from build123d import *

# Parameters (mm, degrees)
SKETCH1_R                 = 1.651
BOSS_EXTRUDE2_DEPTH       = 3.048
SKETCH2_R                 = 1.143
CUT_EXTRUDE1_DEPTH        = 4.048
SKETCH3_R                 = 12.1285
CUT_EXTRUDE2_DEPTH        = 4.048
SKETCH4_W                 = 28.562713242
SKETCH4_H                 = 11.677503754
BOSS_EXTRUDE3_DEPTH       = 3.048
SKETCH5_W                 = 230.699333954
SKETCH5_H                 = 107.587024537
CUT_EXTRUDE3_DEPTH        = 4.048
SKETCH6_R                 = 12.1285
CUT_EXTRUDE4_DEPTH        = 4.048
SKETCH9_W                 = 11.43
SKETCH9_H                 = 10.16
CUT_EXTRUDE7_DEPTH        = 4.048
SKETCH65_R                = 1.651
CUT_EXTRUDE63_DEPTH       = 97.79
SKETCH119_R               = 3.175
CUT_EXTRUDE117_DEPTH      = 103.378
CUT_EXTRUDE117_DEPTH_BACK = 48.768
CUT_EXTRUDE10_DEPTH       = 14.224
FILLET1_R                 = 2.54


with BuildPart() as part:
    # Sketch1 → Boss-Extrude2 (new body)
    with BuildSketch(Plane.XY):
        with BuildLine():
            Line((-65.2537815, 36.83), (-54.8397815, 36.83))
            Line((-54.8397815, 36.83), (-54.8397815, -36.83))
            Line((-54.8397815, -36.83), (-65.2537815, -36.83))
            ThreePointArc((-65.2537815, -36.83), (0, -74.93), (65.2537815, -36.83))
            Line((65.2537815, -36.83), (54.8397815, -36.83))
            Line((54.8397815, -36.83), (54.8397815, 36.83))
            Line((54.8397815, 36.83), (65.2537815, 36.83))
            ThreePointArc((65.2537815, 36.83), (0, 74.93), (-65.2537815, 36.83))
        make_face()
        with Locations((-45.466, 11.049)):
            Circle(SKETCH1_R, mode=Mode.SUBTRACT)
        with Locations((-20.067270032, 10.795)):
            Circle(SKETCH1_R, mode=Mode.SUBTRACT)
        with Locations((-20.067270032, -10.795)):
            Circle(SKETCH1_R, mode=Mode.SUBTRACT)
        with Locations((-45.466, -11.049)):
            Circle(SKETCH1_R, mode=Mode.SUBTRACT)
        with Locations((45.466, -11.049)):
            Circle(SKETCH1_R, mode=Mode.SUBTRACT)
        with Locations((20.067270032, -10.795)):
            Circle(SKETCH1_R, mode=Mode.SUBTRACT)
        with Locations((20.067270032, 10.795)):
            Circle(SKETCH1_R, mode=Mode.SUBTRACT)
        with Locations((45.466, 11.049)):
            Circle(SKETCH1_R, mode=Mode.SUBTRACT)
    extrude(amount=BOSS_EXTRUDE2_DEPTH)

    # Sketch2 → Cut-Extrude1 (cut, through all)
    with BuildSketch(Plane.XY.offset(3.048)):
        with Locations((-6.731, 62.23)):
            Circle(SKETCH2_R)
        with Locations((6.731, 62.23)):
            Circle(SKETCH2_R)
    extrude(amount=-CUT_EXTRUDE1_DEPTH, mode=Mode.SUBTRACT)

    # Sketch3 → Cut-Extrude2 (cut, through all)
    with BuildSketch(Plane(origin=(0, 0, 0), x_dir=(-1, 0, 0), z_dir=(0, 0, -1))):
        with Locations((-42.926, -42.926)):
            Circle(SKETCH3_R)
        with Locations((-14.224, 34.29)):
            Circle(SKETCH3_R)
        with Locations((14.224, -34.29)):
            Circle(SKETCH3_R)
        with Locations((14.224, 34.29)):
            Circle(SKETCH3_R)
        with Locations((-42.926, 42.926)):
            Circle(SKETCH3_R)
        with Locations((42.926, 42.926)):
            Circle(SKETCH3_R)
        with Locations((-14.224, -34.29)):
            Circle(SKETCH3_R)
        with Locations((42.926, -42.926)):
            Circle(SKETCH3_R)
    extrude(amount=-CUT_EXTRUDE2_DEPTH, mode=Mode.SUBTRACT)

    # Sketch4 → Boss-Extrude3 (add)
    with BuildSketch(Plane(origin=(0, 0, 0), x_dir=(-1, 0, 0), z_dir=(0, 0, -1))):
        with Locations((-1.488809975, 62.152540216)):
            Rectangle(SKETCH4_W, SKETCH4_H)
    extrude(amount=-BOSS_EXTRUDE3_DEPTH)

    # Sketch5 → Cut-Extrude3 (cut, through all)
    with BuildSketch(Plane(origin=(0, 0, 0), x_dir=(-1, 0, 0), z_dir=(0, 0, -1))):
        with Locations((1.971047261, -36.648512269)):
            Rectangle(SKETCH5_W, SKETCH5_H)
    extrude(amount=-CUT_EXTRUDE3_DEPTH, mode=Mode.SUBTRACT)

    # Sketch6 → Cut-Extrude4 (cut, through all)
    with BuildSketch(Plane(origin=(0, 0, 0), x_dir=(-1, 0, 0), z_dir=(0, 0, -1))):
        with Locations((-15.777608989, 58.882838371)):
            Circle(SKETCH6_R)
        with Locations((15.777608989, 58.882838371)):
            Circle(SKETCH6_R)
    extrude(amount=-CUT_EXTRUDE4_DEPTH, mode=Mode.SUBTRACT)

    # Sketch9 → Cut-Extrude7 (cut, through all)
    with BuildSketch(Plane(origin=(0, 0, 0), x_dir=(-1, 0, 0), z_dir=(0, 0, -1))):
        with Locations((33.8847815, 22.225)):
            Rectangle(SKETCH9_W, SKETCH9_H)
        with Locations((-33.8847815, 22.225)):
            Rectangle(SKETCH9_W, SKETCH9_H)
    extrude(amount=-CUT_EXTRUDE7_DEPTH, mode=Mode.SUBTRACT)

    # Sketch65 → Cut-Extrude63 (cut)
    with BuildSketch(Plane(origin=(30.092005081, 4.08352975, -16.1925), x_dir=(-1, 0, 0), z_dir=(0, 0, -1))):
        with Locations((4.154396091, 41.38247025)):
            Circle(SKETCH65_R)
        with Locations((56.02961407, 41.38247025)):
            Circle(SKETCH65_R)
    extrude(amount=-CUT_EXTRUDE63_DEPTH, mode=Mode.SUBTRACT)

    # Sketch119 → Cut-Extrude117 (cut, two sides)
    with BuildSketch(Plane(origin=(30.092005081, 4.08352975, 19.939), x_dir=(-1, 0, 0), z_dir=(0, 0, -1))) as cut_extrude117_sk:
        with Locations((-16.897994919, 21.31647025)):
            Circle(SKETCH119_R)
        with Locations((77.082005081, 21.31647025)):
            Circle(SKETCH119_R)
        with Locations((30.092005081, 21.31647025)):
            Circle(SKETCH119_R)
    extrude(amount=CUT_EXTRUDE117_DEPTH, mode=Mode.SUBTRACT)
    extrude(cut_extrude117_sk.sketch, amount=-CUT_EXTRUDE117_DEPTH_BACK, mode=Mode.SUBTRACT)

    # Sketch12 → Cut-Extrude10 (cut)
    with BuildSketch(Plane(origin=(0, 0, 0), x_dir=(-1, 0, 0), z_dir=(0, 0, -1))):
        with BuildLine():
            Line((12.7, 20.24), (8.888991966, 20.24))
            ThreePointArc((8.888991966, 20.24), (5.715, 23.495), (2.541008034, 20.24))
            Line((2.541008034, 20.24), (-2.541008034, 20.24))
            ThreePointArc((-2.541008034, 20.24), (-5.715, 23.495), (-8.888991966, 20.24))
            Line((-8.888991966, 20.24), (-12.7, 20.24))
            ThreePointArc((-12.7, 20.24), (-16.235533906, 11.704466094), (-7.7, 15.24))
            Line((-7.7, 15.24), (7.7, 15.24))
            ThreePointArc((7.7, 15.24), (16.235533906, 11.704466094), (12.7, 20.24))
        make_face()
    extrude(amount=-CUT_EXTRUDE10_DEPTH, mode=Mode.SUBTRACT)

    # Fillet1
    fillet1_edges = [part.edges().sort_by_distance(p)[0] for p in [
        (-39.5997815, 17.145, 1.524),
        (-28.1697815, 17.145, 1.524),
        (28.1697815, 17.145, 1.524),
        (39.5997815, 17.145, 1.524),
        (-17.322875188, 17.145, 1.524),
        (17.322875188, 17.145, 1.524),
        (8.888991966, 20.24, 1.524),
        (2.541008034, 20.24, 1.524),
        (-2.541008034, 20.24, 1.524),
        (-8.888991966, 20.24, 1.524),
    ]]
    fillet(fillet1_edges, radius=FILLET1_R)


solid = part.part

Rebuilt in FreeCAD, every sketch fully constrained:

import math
import FreeCAD as App
import Part
import Sketcher
Q = App.Units.Quantity


def edges_at(feature, points):
    """Names of the edges that pass closest to the given points."""
    edges = feature.Shape.Edges
    near = lambda p: min(range(len(edges)), key=lambda i: edges[i].distToShape(Part.Vertex(*p))[0])
    return sorted({f"Edge{near(p) + 1}" for p in points})


def add_polygon(sketch, points):
    """Adds a closed chain of lines whose ends are joined by coincident constraints."""
    first, n = sketch.GeometryCount, len(points)
    for a, b in zip(points, points[1:] + points[:1]):
        sketch.addGeometry(Part.LineSegment(App.Vector(*a, 0), App.Vector(*b, 0)), False)
    for i in range(n):
        sketch.addConstraint(Sketcher.Constraint("Coincident", first + i, 2, first + (i + 1) % n, 1))

doc = App.newDocument("Part")
params = doc.addObject("Spreadsheet::Sheet", "Params")
for row, (alias, value) in enumerate([
    ("sketch1_diameter", "0.13 in"),
    ("sketch1_radius", "2.95 in"),
    ("sketch1_height", "2.9 in"),
    ("sketch1_width", "0.41 in"),
    ("pad1_length", "0.12 in"),
    ("sketch2_diameter", "0.09 in"),
    ("sketch3_diameter", "0.955 in"),
    ("pad2_length", "0.12 in"),
    ("sketch6_diameter", "0.955 in"),
    ("sketch7_height", "0.4 in"),
    ("sketch7_width", "0.45 in"),
    ("sketch8_diameter", "0.13 in"),
    ("pocket6_length", "3.85 in"),
    ("sketch9_diameter", "0.25 in"),
    ("sketch10_radius", "0.125 in"),
    ("pocket8_length", "0.56 in"),
    ("fillet_radius", "0.1 in"),
], start=1):
    params.set(f"A{row}", alias)
    params.set(f"B{row}", "=" + value)
    params.setAlias(f"B{row}", alias)

body = doc.addObject("PartDesign::Body", "Body")

sketch1 = body.newObject("Sketcher::SketchObject", "Sketch")
sketch1.AttachmentSupport = (doc.getObject("XY_Plane"), [""])
sketch1.MapMode = "FlatFace"
sketch1.addGeometry([
    Part.LineSegment(App.Vector(-65.253782, 36.83, 0), App.Vector(-54.839782, 36.83, 0)),
    Part.LineSegment(App.Vector(-54.839782, 36.83, 0), App.Vector(-54.839782, -36.83, 0)),
    Part.LineSegment(App.Vector(-54.839782, -36.83, 0), App.Vector(-65.253782, -36.83, 0)),
    Part.ArcOfCircle(Part.Circle(App.Vector(0, 0, 0), App.Vector(0, 0, 1), 74.93), math.radians(-150.559107), math.radians(-29.440893)),
    Part.LineSegment(App.Vector(65.253782, -36.83, 0), App.Vector(54.839782, -36.83, 0)),
    Part.LineSegment(App.Vector(54.839782, -36.83, 0), App.Vector(54.839782, 36.83, 0)),
    Part.LineSegment(App.Vector(54.839782, 36.83, 0), App.Vector(65.253782, 36.83, 0)),
    Part.ArcOfCircle(Part.Circle(App.Vector(0, 0, 0), App.Vector(0, 0, 1), 74.93), math.radians(29.440893), math.radians(150.559107)),
    Part.Circle(App.Vector(-45.466, -11.049, 0), App.Vector(0, 0, 1), 1.651),
    Part.Circle(App.Vector(-20.06727, -10.795, 0), App.Vector(0, 0, 1), 1.651),
    Part.Circle(App.Vector(20.06727, -10.795, 0), App.Vector(0, 0, 1), 1.651),
    Part.Circle(App.Vector(45.466, -11.049, 0), App.Vector(0, 0, 1), 1.651),
    Part.Circle(App.Vector(-45.466, 11.049, 0), App.Vector(0, 0, 1), 1.651),
    Part.Circle(App.Vector(-20.06727, 10.795, 0), App.Vector(0, 0, 1), 1.651),
    Part.Circle(App.Vector(20.06727, 10.795, 0), App.Vector(0, 0, 1), 1.651),
    Part.Circle(App.Vector(45.466, 11.049, 0), App.Vector(0, 0, 1), 1.651),
], False)
sketch1.addConstraint([
    Sketcher.Constraint("Coincident", 0, 2, 1, 1),
    Sketcher.Constraint("Coincident", 1, 2, 2, 1),
    Sketcher.Constraint("Coincident", 2, 2, 3, 1),
    Sketcher.Constraint("Coincident", 3, 2, 4, 1),
    Sketcher.Constraint("Coincident", 4, 2, 5, 1),
    Sketcher.Constraint("Coincident", 5, 2, 6, 1),
    Sketcher.Constraint("Coincident", 6, 2, 7, 1),
    Sketcher.Constraint("Coincident", 7, 2, 0, 1),
    Sketcher.Constraint("Horizontal", 0),
    Sketcher.Constraint("Vertical", 1),
    Sketcher.Constraint("Horizontal", 2),
    Sketcher.Constraint("Horizontal", 4),
    Sketcher.Constraint("Vertical", 5),
    Sketcher.Constraint("Horizontal", 6),
    Sketcher.Constraint("Coincident", 3, 3, -1, 1),
    Sketcher.Constraint("Coincident", 7, 3, -1, 1),
    Sketcher.Constraint("Equal", 3, 7),
    Sketcher.Constraint("Equal", 8, 9),
    Sketcher.Constraint("Equal", 9, 10),
    Sketcher.Constraint("Equal", 10, 11),
    Sketcher.Constraint("Equal", 11, 12),
    Sketcher.Constraint("Equal", 12, 13),
    Sketcher.Constraint("Equal", 13, 14),
    Sketcher.Constraint("Equal", 14, 15),
    Sketcher.Constraint("Symmetric", 11, 3, 12, 3, -1, 1),
    Sketcher.Constraint("Symmetric", 10, 3, 13, 3, -1, 1),
    Sketcher.Constraint("Symmetric", 9, 3, 14, 3, -1, 1),
    Sketcher.Constraint("Symmetric", 8, 3, 15, 3, -1, 1),
    Sketcher.Constraint("Symmetric", 0, 2, 4, 2, -1, 1),
    Sketcher.Constraint("Symmetric", 9, 3, 10, 3, -2),
    Sketcher.Constraint("Symmetric", 8, 3, 11, 3, -2),
    Sketcher.Constraint("Horizontal", 2, 2, 3, 2),
    Sketcher.Constraint("Horizontal", 0, 2, 5, 2),
    Sketcher.Constraint("Diameter", 8, Q("0.13 in")),
    Sketcher.Constraint("Radius", 3, Q("2.95 in")),
    Sketcher.Constraint("DistanceY", 1, 2, 1, 1, Q("2.9 in")),
    Sketcher.Constraint("DistanceX", 0, 1, 0, 2, Q("0.41 in")),
    Sketcher.Constraint("DistanceX", 8, 3, -1, 1, Q("1.79 in")),
    Sketcher.Constraint("DistanceY", 8, 3, 9, 3, Q("0.01 in")),
    Sketcher.Constraint("DistanceY", 8, 3, 12, 3, Q("0.87 in")),
    Sketcher.Constraint("DistanceX", 9, 3, 10, 3, Q("1.5801 in")),
])
sketch1.setExpression("Constraints[33]", "Params.sketch1_diameter")
sketch1.setExpression("Constraints[34]", "Params.sketch1_radius")
sketch1.setExpression("Constraints[35]", "Params.sketch1_height")
sketch1.setExpression("Constraints[36]", "Params.sketch1_width")
pad1 = body.newObject("PartDesign::Pad", "Pad")
pad1.Profile = sketch1
pad1.setExpression("Length", "Params.pad1_length")

sketch2 = body.newObject("Sketcher::SketchObject", "Sketch001")
sketch2.AttachmentSupport = (doc.getObject("XY_Plane"), [""])
sketch2.MapMode = "FlatFace"
sketch2.AttachmentOffset = App.Placement(App.Vector(0, 0, 0.12 * 25.4), App.Rotation())
sketch2.addGeometry([
    Part.Circle(App.Vector(-6.731, 62.23, 0), App.Vector(0, 0, 1), 1.143),
    Part.Circle(App.Vector(6.731, 62.23, 0), App.Vector(0, 0, 1), 1.143),
], False)
sketch2.addConstraint([
    Sketcher.Constraint("Equal", 0, 1),
    Sketcher.Constraint("Symmetric", 0, 3, 1, 3, -2),
    Sketcher.Constraint("Diameter", 0, Q("0.09 in")),
    Sketcher.Constraint("DistanceY", -1, 1, 0, 3, Q("2.45 in")),
    Sketcher.Constraint("DistanceX", 0, 3, 1, 3, Q("0.53 in")),
])
sketch2.setExpression("Constraints[2]", "Params.sketch2_diameter")
pocket1 = body.newObject("PartDesign::Pocket", "Pocket")
pocket1.Profile = sketch2
pocket1.Type = "ThroughAll"

sketch3 = body.newObject("Sketcher::SketchObject", "Sketch002")
sketch3.AttachmentSupport = (doc.getObject("XY_Plane"), [""])
sketch3.MapMode = "FlatFace"
sketch3.addGeometry([
    Part.Circle(App.Vector(42.926, -42.926, 0), App.Vector(0, 0, 1), 12.1285),
    Part.Circle(App.Vector(14.224, 34.29, 0), App.Vector(0, 0, 1), 12.1285),
    Part.Circle(App.Vector(-14.224, -34.29, 0), App.Vector(0, 0, 1), 12.1285),
    Part.Circle(App.Vector(-14.224, 34.29, 0), App.Vector(0, 0, 1), 12.1285),
    Part.Circle(App.Vector(42.926, 42.926, 0), App.Vector(0, 0, 1), 12.1285),
    Part.Circle(App.Vector(-42.926, 42.926, 0), App.Vector(0, 0, 1), 12.1285),
    Part.Circle(App.Vector(14.224, -34.29, 0), App.Vector(0, 0, 1), 12.1285),
    Part.Circle(App.Vector(-42.926, -42.926, 0), App.Vector(0, 0, 1), 12.1285),
], False)
sketch3.addConstraint([
    Sketcher.Constraint("Equal", 0, 1),
    Sketcher.Constraint("Equal", 1, 2),
    Sketcher.Constraint("Equal", 2, 3),
    Sketcher.Constraint("Equal", 3, 4),
    Sketcher.Constraint("Equal", 4, 5),
    Sketcher.Constraint("Equal", 5, 6),
    Sketcher.Constraint("Equal", 6, 7),
    Sketcher.Constraint("Symmetric", 1, 3, 2, 3, -1, 1),
    Sketcher.Constraint("Symmetric", 0, 3, 5, 3, -1, 1),
    Sketcher.Constraint("Symmetric", 3, 3, 6, 3, -1, 1),
    Sketcher.Constraint("Symmetric", 4, 3, 7, 3, -1, 1),
    Sketcher.Constraint("Symmetric", 1, 3, 3, 3, -2),
    Sketcher.Constraint("Symmetric", 4, 3, 5, 3, -2),
    Sketcher.Constraint("Diameter", 0, Q("0.955 in")),
    Sketcher.Constraint("DistanceY", 2, 3, 1, 3, Q("2.7 in")),
    Sketcher.Constraint("DistanceX", -1, 1, 0, 3, Q("1.69 in")),
    Sketcher.Constraint("DistanceY", 0, 3, -1, 1, Q("1.69 in")),
    Sketcher.Constraint("DistanceX", -1, 1, 1, 3, Q("0.56 in")),
])
sketch3.setExpression("Constraints[13]", "Params.sketch3_diameter")
pocket2 = body.newObject("PartDesign::Pocket", "Pocket001")
pocket2.Profile = sketch3
pocket2.Type = "ThroughAll"
pocket2.Reversed = True

sketch4 = body.newObject("Sketcher::SketchObject", "Sketch003")
sketch4.AttachmentSupport = (doc.getObject("XY_Plane"), [""])
sketch4.MapMode = "FlatFace"
add_polygon(sketch4, [(15.770167, 67.991292), (15.770167, 56.313788), (-12.792547, 56.313788), (-12.792547, 67.991292)])
sketch4.addConstraint([
    Sketcher.Constraint("Vertical", 0),
    Sketcher.Constraint("Horizontal", 1),
    Sketcher.Constraint("Vertical", 2),
    Sketcher.Constraint("Horizontal", 3),
    Sketcher.Constraint("DistanceX", 1, 2, 1, 1, 28.562713),
    Sketcher.Constraint("DistanceY", 0, 2, 0, 1, 11.677504),
    Sketcher.Constraint("DistanceY", -1, 1, 0, 2, 56.313788),
    Sketcher.Constraint("DistanceX", -1, 1, 0, 2, 15.770167),
])
pad2 = body.newObject("PartDesign::Pad", "Pad001")
pad2.Profile = sketch4
pad2.setExpression("Length", "Params.pad2_length")

sketch5 = body.newObject("Sketcher::SketchObject", "Sketch004")
sketch5.AttachmentSupport = (doc.getObject("XY_Plane"), [""])
sketch5.MapMode = "FlatFace"
add_polygon(sketch5, [(113.37862, 17.145), (113.37862, -90.442025), (-117.320714, -90.442025), (-117.320714, 17.145)])
sketch5.addConstraint([
    Sketcher.Constraint("Vertical", 0),
    Sketcher.Constraint("Horizontal", 1),
    Sketcher.Constraint("Vertical", 2),
    Sketcher.Constraint("Horizontal", 3),
    Sketcher.Constraint("DistanceY", -1, 1, 2, 2, Q("0.675 in")),
    Sketcher.Constraint("DistanceX", 1, 2, 1, 1, 230.699334),
    Sketcher.Constraint("DistanceY", 0, 2, 0, 1, 107.587025),
    Sketcher.Constraint("DistanceX", -1, 1, 0, 2, 113.37862),
])
pocket3 = body.newObject("PartDesign::Pocket", "Pocket002")
pocket3.Profile = sketch5
pocket3.Type = "ThroughAll"
pocket3.Reversed = True

sketch6 = body.newObject("Sketcher::SketchObject", "Sketch005")
sketch6.AttachmentSupport = (doc.getObject("XY_Plane"), [""])
sketch6.MapMode = "FlatFace"
sketch6.addGeometry([
    Part.Circle(App.Vector(15.777609, 58.882838, 0), App.Vector(0, 0, 1), 12.1285),
    Part.Circle(App.Vector(-15.777609, 58.882838, 0), App.Vector(0, 0, 1), 12.1285),
], False)
sketch6.addConstraint([
    Sketcher.Constraint("Equal", 0, 1),
    Sketcher.Constraint("Symmetric", 0, 3, 1, 3, -2),
    Sketcher.Constraint("Diameter", 0, Q("0.955 in")),
    Sketcher.Constraint("DistanceX", -1, 1, 0, 3, 15.777609),
    Sketcher.Constraint("DistanceY", -1, 1, 0, 3, 58.882838),
])
sketch6.setExpression("Constraints[2]", "Params.sketch6_diameter")
pocket4 = body.newObject("PartDesign::Pocket", "Pocket003")
pocket4.Profile = sketch6
pocket4.Type = "ThroughAll"
pocket4.Reversed = True

sketch7 = body.newObject("Sketcher::SketchObject", "Sketch006")
sketch7.AttachmentSupport = (doc.getObject("XY_Plane"), [""])
sketch7.MapMode = "FlatFace"
add_polygon(sketch7, [(-28.169781, 27.305), (-28.169781, 17.145), (-39.599781, 17.145), (-39.599781, 27.305)])
add_polygon(sketch7, [(39.599781, 27.305), (39.599781, 17.145), (28.169781, 17.145), (28.169781, 27.305)])
sketch7.addConstraint([
    Sketcher.Constraint("Vertical", 0),
    Sketcher.Constraint("Horizontal", 1),
    Sketcher.Constraint("Vertical", 2),
    Sketcher.Constraint("Horizontal", 3),
    Sketcher.Constraint("Vertical", 4),
    Sketcher.Constraint("Horizontal", 5),
    Sketcher.Constraint("Vertical", 6),
    Sketcher.Constraint("Horizontal", 7),
    Sketcher.Constraint("Symmetric", 1, 2, 4, 2, -2),
    Sketcher.Constraint("Symmetric", 3, 2, 6, 2, -2),
    Sketcher.Constraint("DistanceY", 0, 2, 0, 1, Q("0.4 in")),
    Sketcher.Constraint("DistanceX", 1, 2, 1, 1, Q("0.45 in")),
    Sketcher.Constraint("DistanceY", -1, 1, 0, 2, Q("0.675 in")),
    Sketcher.Constraint("DistanceX", 0, 2, -1, 1, 28.169781),
])
sketch7.setExpression("Constraints[18]", "Params.sketch7_height")
sketch7.setExpression("Constraints[19]", "Params.sketch7_width")
pocket5 = body.newObject("PartDesign::Pocket", "Pocket004")
pocket5.Profile = sketch7
pocket5.Type = "ThroughAll"
pocket5.Reversed = True

sketch8 = body.newObject("Sketcher::SketchObject", "Sketch007")
sketch8.AttachmentSupport = (doc.getObject("XY_Plane"), [""])
sketch8.MapMode = "FlatFace"
sketch8.AttachmentOffset = App.Placement(App.Vector(0, 0, -0.6375 * 25.4), App.Rotation())
sketch8.addGeometry([
    Part.Circle(App.Vector(25.937609, 45.466, 0), App.Vector(0, 0, 1), 1.651),
    Part.Circle(App.Vector(-25.937609, 45.466, 0), App.Vector(0, 0, 1), 1.651),
], False)
sketch8.addConstraint([
    Sketcher.Constraint("Equal", 0, 1),
    Sketcher.Constraint("Symmetric", 0, 3, 1, 3, -2),
    Sketcher.Constraint("Diameter", 0, Q("0.13 in")),
    Sketcher.Constraint("DistanceY", -1, 1, 0, 3, Q("1.79 in")),
    Sketcher.Constraint("DistanceX", -1, 1, 0, 3, 25.937609),
])
sketch8.setExpression("Constraints[2]", "Params.sketch8_diameter")
pocket6 = body.newObject("PartDesign::Pocket", "Pocket005")
pocket6.Profile = sketch8
pocket6.setExpression("Length", "Params.pocket6_length")
pocket6.Reversed = True

sketch9 = body.newObject("Sketcher::SketchObject", "Sketch008")
sketch9.AttachmentSupport = (doc.getObject("XY_Plane"), [""])
sketch9.MapMode = "FlatFace"
sketch9.AttachmentOffset = App.Placement(App.Vector(0, 0, 0.785 * 25.4), App.Rotation())
sketch9.addGeometry([
    Part.Circle(App.Vector(46.99, 25.4, 0), App.Vector(0, 0, 1), 3.175),
    Part.Circle(App.Vector(-46.99, 25.4, 0), App.Vector(0, 0, 1), 3.175),
    Part.Circle(App.Vector(0, 25.4, 0), App.Vector(0, 0, 1), 3.175),
], False)
sketch9.addConstraint([
    Sketcher.Constraint("Equal", 0, 1),
    Sketcher.Constraint("Equal", 1, 2),
    Sketcher.Constraint("Symmetric", 0, 3, 1, 3, -2),
    Sketcher.Constraint("PointOnObject", 2, 3, -2),
    Sketcher.Constraint("Horizontal", 1, 3, 2, 3),
    Sketcher.Constraint("Diameter", 0, Q("0.25 in")),
    Sketcher.Constraint("DistanceY", -1, 1, 0, 3, Q("1 in")),
    Sketcher.Constraint("DistanceX", 1, 3, 0, 3, Q("3.7 in")),
])
sketch9.setExpression("Constraints[5]", "Params.sketch9_diameter")
pocket7 = body.newObject("PartDesign::Pocket", "Pocket006")
pocket7.Profile = sketch9
pocket7.Type = "ThroughAll"
pocket7.Midplane = True

sketch10 = body.newObject("Sketcher::SketchObject", "Sketch009")
sketch10.AttachmentSupport = (doc.getObject("XY_Plane"), [""])
sketch10.MapMode = "FlatFace"
sketch10.addGeometry([
    Part.LineSegment(App.Vector(-12.7, 20.24, 0), App.Vector(-8.888992, 20.24, 0)),
    Part.ArcOfCircle(Part.Circle(App.Vector(-5.715, 20.32, 0), App.Vector(0, 0, 1), 3.175), math.radians(-1.443826), math.radians(181.443826)),
    Part.LineSegment(App.Vector(-2.541008, 20.24, 0), App.Vector(2.541008, 20.24, 0)),
    Part.ArcOfCircle(Part.Circle(App.Vector(5.715, 20.32, 0), App.Vector(0, 0, 1), 3.175), math.radians(-1.443826), math.radians(181.443826)),
    Part.LineSegment(App.Vector(8.888992, 20.24, 0), App.Vector(12.7, 20.24, 0)),
    Part.ArcOfCircle(Part.Circle(App.Vector(12.7, 15.24, 0), App.Vector(0, 0, 1), 5), math.radians(180), math.radians(450)),
    Part.LineSegment(App.Vector(7.7, 15.24, 0), App.Vector(-7.7, 15.24, 0)),
    Part.ArcOfCircle(Part.Circle(App.Vector(-12.7, 15.24, 0), App.Vector(0, 0, 1), 5), math.radians(90), math.radians(360)),
], False)
sketch10.addConstraint([
    Sketcher.Constraint("Coincident", 0, 2, 1, 2),
    Sketcher.Constraint("Coincident", 1, 1, 2, 1),
    Sketcher.Constraint("Coincident", 2, 2, 3, 2),
    Sketcher.Constraint("Coincident", 3, 1, 4, 1),
    Sketcher.Constraint("Tangent", 4, 2, 5, 2),
    Sketcher.Constraint("Coincident", 5, 1, 6, 1),
    Sketcher.Constraint("Coincident", 6, 2, 7, 2),
    Sketcher.Constraint("Tangent", 7, 1, 0, 1),
    Sketcher.Constraint("Horizontal", 0),
    Sketcher.Constraint("Horizontal", 2),
    Sketcher.Constraint("Horizontal", 4),
    Sketcher.Constraint("Horizontal", 6),
    Sketcher.Constraint("Equal", 1, 3),
    Sketcher.Constraint("Equal", 5, 7),
    Sketcher.Constraint("Symmetric", 1, 3, 3, 3, -2),
    Sketcher.Constraint("Symmetric", 5, 3, 7, 3, -2),
    Sketcher.Constraint("Horizontal", 0, 2, 1, 1),
    Sketcher.Constraint("Horizontal", 7, 3, 5, 1),
    Sketcher.Constraint("Radius", 1, Q("0.125 in")),
    Sketcher.Constraint("DistanceX", 7, 3, 5, 3, Q("1 in")),
    Sketcher.Constraint("DistanceY", -1, 1, 1, 3, Q("0.8 in")),
    Sketcher.Constraint("DistanceY", -1, 1, 5, 3, Q("0.6 in")),
    Sketcher.Constraint("Radius", 5, 5.0),
    Sketcher.Constraint("DistanceX", 1, 3, 3, 3, Q("0.45 in")),
])
sketch10.setExpression("Constraints[18]", "Params.sketch10_radius")
pocket8 = body.newObject("PartDesign::Pocket", "Pocket007")
pocket8.Profile = sketch10
pocket8.setExpression("Length", "Params.pocket8_length")
pocket8.Reversed = True
doc.recompute()

fillet = body.newObject("PartDesign::Fillet", "Fillet")
fillet.Base = (pocket8, edges_at(pocket8, [
    (-39.6, 17.145, 1.524),
    (-28.17, 17.145, 1.524),
    (28.17, 17.145, 1.524),
    (39.6, 17.145, 1.524),
    (-17.323, 17.145, 1.524),
    (17.323, 17.145, 1.524),
    (8.889, 20.24, 1.524),
    (2.541, 20.24, 1.524),
    (-2.541, 20.24, 1.524),
    (-8.889, 20.24, 1.524),
]))
fillet.setExpression("Radius", "Params.fillet_radius")

doc.recompute()
